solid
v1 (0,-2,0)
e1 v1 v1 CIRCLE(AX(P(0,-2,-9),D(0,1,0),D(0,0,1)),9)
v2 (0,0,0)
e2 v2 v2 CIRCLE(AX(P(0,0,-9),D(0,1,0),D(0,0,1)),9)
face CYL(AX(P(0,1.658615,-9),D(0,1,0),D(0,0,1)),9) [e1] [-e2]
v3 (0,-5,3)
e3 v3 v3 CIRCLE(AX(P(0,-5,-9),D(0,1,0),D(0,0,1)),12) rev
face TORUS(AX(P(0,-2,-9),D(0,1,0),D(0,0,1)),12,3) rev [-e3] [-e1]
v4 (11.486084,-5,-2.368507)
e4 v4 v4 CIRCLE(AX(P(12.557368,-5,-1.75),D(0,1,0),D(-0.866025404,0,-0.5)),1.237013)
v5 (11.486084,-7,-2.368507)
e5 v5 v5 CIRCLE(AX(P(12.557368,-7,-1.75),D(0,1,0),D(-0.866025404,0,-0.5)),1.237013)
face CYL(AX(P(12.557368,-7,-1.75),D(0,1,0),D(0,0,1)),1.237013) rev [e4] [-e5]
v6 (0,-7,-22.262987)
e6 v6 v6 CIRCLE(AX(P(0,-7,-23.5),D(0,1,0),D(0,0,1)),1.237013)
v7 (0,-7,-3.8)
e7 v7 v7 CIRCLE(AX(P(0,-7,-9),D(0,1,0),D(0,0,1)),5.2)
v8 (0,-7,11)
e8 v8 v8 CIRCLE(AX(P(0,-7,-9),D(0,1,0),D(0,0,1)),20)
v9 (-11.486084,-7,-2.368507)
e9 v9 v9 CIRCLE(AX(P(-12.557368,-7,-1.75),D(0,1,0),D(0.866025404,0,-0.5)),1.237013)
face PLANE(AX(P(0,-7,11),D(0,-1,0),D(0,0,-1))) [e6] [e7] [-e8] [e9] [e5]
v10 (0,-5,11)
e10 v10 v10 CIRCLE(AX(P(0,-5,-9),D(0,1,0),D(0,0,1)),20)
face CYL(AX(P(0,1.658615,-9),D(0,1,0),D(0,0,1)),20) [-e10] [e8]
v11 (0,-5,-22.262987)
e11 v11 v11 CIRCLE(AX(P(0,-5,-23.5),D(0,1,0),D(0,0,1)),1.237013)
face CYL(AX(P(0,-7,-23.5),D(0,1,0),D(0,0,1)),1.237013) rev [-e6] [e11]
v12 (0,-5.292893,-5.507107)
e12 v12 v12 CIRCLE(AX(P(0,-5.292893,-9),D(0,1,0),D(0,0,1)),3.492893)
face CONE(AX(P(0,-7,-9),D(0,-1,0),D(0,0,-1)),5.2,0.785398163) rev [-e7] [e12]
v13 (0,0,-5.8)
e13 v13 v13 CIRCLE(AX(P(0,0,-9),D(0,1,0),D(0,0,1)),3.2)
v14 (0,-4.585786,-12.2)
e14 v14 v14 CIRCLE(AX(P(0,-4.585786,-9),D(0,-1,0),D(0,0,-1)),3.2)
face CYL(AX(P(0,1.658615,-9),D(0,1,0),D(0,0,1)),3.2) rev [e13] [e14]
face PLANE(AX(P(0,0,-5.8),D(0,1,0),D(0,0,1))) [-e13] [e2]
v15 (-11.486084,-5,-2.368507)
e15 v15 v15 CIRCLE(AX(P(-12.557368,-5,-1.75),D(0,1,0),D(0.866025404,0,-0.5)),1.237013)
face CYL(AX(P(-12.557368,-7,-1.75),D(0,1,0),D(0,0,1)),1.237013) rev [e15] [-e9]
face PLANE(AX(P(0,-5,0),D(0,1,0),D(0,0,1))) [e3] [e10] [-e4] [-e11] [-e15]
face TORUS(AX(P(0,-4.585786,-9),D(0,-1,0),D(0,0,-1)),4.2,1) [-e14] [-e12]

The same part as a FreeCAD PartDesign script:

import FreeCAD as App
import Part
import Sketcher
from FreeCAD import Vector
Q = App.Units.Quantity


def edges_at(feature, points):
    """Names of the edges that pass closest to the given points."""
    edges = feature.Shape.Edges
    near = lambda p: min(range(len(edges)), key=lambda i: edges[i].distToShape(Part.Vertex(*p))[0])
    return sorted({f"Edge{near(p) + 1}" for p in points})


def add_polygon(sketch, points):
    """Adds a closed chain of lines whose ends are joined by coincident constraints."""
    first, n = sketch.GeometryCount, len(points)
    for a, b in zip(points, points[1:] + points[:1]):
        sketch.addGeometry(Part.LineSegment(App.Vector(*a, 0), App.Vector(*b, 0)), False)
    for i in range(n):
        sketch.addConstraint(Sketcher.Constraint("Coincident", first + i, 2, first + (i + 1) % n, 1))

doc = App.newDocument("Part")
body = doc.addObject("PartDesign::Body", "Body")

# Sketch on YZ plane
sketch1 = body.newObject("Sketcher::SketchObject", "Sketch")
sketch1.AttachmentSupport = (doc.getObject("YZ_Plane"), [""])
sketch1.MapMode = "FlatFace"
add_polygon(sketch1, [(0, 0), (-5, 0), (-5, 11), (-7, 11), (-7, -3.8), (-5, -5.8), (0, -5.8)])  # lines 0-6
sketch1.addGeometry(Part.LineSegment(Vector(0, -9, 0), Vector(-7, -9, 0)), True)  # axis
sketch1.addConstraint(Sketcher.Constraint("Horizontal", 0))
sketch1.addConstraint(Sketcher.Constraint("Vertical", 1))
sketch1.addConstraint(Sketcher.Constraint("Horizontal", 2))
sketch1.addConstraint(Sketcher.Constraint("Vertical", 3))
sketch1.addConstraint(Sketcher.Constraint("Horizontal", 5))
sketch1.addConstraint(Sketcher.Constraint("Vertical", 6))
sketch1.addConstraint(Sketcher.Constraint("Horizontal", 7))
sketch1.addConstraint(Sketcher.Constraint("Coincident", 6, 2, -1, 1))
sketch1.addConstraint(Sketcher.Constraint("PointOnObject", 7, 1, -2))
sketch1.addConstraint(Sketcher.Constraint("Vertical", 1, 2, 4, 2))
sketch1.addConstraint(Sketcher.Constraint("Vertical", 3, 2, 7, 2))
sketch1.addConstraint(Sketcher.Constraint("DistanceX", 0, 2, 0, 1, Q("5 mm")))
sketch1.addConstraint(Sketcher.Constraint("DistanceX", 2, 2, 2, 1, Q("2 mm")))
sketch1.addConstraint(Sketcher.Constraint("DistanceY", 1, 1, 1, 2, Q("11 mm")))
sketch1.addConstraint(Sketcher.Constraint("Angle", 4, Q("-45 deg")))
sketch1.addConstraint(Sketcher.Constraint("DistanceY", 3, 2, 3, 1, Q("14.8 mm")))
sketch1.addConstraint(Sketcher.Constraint("DistanceY", 7, 1, -1, 1, Q("9 mm")))
revolution = body.newObject("PartDesign::Revolution", "Revolution")
revolution.Profile = sketch1
revolution.ReferenceAxis = (sketch1, ["Axis0"])
revolution.Angle = 360

# Sketch on XZ plane
sketch2 = body.newObject("Sketcher::SketchObject", "Sketch001")
sketch2.AttachmentSupport = (doc.getObject("XZ_Plane"), [""])
sketch2.MapMode = "FlatFace"
sketch2.AttachmentOffset = App.Placement(Vector(0, 0, 5), App.Rotation())
sketch2.addGeometry(Part.Circle(Vector(0, -23.5, 0), Vector(0, 0, 1), 1.2), False)
sketch2.addConstraint(Sketcher.Constraint("PointOnObject", 0, 3, -2))
sketch2.addConstraint(Sketcher.Constraint("DistanceY", 0, 3, -1, 1, Q("23.5 mm")))
sketch2.addConstraint(Sketcher.Constraint("Diameter", 0, Q("2.474026 mm")))
pocket1 = body.newObject("PartDesign::Pocket", "Pocket")
pocket1.Profile = sketch2
pocket1.Type = "ThroughAll"
pocket1.Reversed = True
doc.recompute()

datumline = body.newObject("PartDesign::Line", "DatumLine")
datumline.Placement = App.Placement(Vector(0, 0, -9), App.Rotation(Vector(0, 0, 1), Vector(0, 1, 0)))
polarpattern = body.newObject("PartDesign::PolarPattern", "PolarPattern")
polarpattern.Originals = [pocket1]
polarpattern.Axis = (datumline, [""])
polarpattern.Angle = 360
polarpattern.Occurrences = 3
body.Tip = polarpattern
doc.recompute()

fillet = body.newObject("PartDesign::Fillet", "Fillet")
fillet.Base = (polarpattern, edges_at(polarpattern, [(0, -5, -18)]))
fillet.Radius = 3
doc.recompute()

fillet2 = body.newObject("PartDesign::Fillet", "Fillet001")
fillet2.Base = (fillet, edges_at(fillet, [(0, -5, -12.2)]))
fillet2.Radius = 1

doc.recompute()
